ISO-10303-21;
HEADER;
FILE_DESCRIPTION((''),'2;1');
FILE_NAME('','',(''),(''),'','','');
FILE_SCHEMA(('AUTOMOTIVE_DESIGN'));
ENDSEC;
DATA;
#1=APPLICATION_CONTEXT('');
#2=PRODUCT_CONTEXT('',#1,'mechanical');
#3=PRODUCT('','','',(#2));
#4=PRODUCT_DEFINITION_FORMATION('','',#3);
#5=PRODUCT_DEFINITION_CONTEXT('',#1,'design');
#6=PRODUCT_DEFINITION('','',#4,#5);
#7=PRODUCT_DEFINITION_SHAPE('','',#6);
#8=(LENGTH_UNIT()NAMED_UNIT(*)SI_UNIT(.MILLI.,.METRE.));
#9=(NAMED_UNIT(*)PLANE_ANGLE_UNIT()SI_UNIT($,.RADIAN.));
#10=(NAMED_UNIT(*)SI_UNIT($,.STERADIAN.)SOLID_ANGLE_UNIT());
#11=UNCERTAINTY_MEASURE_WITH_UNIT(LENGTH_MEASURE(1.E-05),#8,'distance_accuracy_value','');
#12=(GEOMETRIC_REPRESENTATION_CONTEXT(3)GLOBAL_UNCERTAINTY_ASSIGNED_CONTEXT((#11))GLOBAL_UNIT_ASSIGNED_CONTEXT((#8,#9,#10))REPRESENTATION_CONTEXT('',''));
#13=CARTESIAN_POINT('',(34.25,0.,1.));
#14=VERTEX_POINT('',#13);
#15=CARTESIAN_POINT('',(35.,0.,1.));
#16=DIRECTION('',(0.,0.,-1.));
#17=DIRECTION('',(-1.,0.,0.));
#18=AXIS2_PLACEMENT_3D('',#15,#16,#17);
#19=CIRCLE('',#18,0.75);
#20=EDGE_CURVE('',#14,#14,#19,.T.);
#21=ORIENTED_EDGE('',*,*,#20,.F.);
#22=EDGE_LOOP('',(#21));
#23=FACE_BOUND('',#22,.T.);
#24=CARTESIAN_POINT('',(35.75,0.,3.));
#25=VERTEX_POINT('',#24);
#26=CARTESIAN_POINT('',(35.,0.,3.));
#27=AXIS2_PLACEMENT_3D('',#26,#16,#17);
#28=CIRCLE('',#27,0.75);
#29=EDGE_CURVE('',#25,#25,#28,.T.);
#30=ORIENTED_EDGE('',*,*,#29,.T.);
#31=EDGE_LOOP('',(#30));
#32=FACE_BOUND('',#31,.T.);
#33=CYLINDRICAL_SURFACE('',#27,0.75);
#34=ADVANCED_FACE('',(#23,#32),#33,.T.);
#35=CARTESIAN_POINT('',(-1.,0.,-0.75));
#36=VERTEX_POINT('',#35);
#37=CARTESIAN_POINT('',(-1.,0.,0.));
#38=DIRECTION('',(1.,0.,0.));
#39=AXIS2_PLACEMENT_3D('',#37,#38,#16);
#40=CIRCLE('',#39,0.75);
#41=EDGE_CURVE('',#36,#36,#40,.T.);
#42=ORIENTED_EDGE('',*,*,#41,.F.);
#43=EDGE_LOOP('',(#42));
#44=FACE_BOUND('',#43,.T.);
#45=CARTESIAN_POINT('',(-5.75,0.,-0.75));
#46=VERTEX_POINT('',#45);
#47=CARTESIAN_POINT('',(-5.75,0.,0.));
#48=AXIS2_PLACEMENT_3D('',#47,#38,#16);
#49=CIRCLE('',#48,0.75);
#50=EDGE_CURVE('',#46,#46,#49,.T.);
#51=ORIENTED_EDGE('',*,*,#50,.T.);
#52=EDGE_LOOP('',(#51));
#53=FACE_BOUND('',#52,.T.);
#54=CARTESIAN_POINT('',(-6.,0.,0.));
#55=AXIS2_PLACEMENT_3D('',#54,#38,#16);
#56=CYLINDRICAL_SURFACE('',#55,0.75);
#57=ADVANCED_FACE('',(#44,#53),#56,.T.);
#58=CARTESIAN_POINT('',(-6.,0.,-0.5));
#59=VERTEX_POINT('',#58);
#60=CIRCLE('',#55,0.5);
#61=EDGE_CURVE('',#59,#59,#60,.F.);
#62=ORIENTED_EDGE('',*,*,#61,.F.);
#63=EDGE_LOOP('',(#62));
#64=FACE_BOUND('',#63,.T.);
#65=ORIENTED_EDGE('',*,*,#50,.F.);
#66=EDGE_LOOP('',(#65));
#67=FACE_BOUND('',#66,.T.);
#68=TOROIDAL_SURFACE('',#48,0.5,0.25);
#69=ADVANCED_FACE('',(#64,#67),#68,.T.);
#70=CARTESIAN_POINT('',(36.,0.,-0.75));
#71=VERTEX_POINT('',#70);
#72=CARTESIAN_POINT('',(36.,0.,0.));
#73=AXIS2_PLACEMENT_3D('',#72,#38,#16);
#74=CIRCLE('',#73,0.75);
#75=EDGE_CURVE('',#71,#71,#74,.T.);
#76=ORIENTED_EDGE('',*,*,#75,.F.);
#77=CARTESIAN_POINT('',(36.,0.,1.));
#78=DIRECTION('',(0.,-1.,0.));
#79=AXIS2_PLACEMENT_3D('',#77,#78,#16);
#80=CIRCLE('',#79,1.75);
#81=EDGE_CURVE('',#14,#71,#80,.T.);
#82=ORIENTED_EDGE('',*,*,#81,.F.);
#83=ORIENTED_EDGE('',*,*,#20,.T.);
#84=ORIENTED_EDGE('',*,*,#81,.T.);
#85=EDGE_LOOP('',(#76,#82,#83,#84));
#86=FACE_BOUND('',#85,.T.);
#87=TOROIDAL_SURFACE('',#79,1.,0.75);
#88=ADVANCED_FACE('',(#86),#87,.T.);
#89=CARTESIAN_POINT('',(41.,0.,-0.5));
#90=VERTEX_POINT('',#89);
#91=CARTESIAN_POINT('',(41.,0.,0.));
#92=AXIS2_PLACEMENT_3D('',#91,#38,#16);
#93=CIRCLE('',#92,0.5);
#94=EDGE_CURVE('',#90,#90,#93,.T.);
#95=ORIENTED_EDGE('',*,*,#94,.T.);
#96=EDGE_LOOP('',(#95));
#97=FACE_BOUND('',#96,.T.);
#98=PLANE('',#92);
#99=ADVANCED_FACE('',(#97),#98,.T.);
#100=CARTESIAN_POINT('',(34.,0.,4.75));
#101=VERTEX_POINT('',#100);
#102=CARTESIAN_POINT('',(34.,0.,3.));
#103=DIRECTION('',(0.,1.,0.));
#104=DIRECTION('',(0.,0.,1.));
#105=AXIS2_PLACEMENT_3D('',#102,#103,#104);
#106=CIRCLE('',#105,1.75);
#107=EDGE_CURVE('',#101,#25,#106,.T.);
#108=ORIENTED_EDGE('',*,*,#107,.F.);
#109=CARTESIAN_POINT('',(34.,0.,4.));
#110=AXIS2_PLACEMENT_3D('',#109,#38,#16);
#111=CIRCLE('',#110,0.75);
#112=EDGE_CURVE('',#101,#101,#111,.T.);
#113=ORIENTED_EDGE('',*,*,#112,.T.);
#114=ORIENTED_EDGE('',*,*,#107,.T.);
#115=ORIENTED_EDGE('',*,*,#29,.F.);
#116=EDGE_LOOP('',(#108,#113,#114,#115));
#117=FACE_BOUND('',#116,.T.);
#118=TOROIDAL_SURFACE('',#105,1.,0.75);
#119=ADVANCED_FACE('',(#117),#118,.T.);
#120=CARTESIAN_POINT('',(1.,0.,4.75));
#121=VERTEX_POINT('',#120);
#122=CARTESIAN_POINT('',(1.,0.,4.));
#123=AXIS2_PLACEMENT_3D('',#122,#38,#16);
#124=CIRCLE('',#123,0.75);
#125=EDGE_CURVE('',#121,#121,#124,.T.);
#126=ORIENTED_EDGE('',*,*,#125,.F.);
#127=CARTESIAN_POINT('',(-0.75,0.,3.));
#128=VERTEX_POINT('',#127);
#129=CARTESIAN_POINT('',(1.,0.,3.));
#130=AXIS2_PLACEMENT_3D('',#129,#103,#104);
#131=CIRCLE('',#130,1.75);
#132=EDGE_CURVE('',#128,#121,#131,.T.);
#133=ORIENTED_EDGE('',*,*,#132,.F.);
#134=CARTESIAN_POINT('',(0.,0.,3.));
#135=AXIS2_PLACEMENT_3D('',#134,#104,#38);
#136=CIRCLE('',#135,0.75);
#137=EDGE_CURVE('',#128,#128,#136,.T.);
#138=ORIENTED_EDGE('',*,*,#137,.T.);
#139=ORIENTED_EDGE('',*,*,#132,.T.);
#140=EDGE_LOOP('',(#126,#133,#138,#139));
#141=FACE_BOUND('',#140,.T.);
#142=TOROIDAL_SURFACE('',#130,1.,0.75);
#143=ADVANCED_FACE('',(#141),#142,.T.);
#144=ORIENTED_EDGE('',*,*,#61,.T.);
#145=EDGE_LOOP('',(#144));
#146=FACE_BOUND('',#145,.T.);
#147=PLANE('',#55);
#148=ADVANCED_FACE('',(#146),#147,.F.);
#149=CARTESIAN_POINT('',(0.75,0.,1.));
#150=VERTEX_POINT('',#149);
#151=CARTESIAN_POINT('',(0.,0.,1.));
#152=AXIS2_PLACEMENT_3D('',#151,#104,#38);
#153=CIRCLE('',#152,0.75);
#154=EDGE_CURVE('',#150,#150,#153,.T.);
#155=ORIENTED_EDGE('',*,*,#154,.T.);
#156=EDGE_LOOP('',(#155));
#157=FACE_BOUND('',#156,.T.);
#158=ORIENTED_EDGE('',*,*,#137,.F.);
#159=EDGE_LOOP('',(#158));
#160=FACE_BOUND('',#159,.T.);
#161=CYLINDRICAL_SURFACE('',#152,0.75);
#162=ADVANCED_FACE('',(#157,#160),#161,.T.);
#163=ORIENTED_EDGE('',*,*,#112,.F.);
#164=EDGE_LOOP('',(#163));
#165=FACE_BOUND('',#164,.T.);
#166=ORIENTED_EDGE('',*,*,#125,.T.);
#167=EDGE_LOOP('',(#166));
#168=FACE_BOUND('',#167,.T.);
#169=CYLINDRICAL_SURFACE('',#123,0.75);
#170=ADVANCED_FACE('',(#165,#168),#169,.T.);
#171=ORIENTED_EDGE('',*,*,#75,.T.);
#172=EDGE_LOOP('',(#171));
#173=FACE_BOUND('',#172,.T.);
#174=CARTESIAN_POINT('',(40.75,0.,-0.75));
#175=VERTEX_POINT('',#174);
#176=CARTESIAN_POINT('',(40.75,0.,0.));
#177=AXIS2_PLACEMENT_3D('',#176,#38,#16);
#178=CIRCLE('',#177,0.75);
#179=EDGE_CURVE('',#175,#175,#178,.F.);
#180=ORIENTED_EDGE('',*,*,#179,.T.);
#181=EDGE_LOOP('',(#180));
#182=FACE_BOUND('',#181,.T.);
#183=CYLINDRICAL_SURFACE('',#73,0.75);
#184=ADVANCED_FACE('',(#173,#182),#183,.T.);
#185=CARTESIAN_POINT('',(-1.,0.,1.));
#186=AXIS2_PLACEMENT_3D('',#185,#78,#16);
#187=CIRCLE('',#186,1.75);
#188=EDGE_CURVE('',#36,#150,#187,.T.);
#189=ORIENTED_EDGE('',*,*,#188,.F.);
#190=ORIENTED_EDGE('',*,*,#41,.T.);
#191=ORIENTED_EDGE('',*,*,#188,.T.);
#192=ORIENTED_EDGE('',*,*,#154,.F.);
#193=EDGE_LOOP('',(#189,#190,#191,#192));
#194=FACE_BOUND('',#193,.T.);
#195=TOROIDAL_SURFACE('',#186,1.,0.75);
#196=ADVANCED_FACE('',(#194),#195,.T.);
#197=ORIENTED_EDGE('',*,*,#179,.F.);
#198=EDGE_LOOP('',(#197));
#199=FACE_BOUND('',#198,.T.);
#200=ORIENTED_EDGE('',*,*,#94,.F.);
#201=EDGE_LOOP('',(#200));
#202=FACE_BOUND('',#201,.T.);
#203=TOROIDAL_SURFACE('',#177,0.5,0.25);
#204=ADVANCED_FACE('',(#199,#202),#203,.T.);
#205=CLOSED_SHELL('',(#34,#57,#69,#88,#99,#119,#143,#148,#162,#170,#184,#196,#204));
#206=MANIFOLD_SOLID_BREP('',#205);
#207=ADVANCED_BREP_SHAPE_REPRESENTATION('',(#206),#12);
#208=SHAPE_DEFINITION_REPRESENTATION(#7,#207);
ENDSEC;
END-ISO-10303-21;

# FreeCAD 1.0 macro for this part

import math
import FreeCAD as App
import Part
import Sketcher
from FreeCAD import Vector


def edges_at(feature, points):
    """Names of the edges that pass closest to the given points."""
    edges = feature.Shape.Edges
    near = lambda p: min(range(len(edges)), key=lambda i: edges[i].distToShape(Part.Vertex(*p))[0])
    return sorted({f"Edge{near(p) + 1}" for p in points})

doc = App.newDocument("Part")
body = doc.addObject("PartDesign::Body", "Body")

# Sketch on YZ plane
sketch1 = body.newObject("Sketcher::SketchObject", "Sketch")
sketch1.AttachmentSupport = (doc.getObject("YZ_Plane"), [""])
sketch1.MapMode = "FlatFace"
sketch1.AttachmentOffset = App.Placement(Vector(0, 0, -6), App.Rotation())
sketch1.addGeometry(Part.Circle(Vector(0, 0, 0), Vector(0, 0, 1), 0.75), False)
sketch1.addConstraint(Sketcher.Constraint("Coincident", 0, 3, -1, 1))
sketch1.addConstraint(Sketcher.Constraint("Diameter", 0, 1.5))

# Sketch on XZ plane
sketch2 = body.newObject("Sketcher::SketchObject", "Sketch001")
sketch2.AttachmentSupport = (doc.getObject("XZ_Plane"), [""])
sketch2.MapMode = "FlatFace"
sketch2.addGeometry(Part.LineSegment(Vector(-6, 0, 0), Vector(-1, 0, 0)), False)
sketch2.addGeometry(Part.ArcOfCircle(Part.Circle(Vector(-1, 1, 0), Vector(0, 0, 1), 1), math.radians(-90), math.radians(0)), False)
sketch2.addGeometry(Part.LineSegment(Vector(0, 1, 0), Vector(0, 3, 0)), False)
sketch2.addGeometry(Part.ArcOfCircle(Part.Circle(Vector(1, 3, 0), Vector(0, 0, 1), 1), math.radians(90), math.radians(180)), False)
sketch2.addGeometry(Part.LineSegment(Vector(1, 4, 0), Vector(34, 4, 0)), False)
sketch2.addGeometry(Part.ArcOfCircle(Part.Circle(Vector(34, 3, 0), Vector(0, 0, 1), 1), math.radians(0), math.radians(90)), False)
sketch2.addGeometry(Part.LineSegment(Vector(35, 3, 0), Vector(35, 1, 0)), False)
sketch2.addGeometry(Part.ArcOfCircle(Part.Circle(Vector(36, 1, 0), Vector(0, 0, 1), 1), math.radians(-180), math.radians(-90)), False)
sketch2.addGeometry(Part.LineSegment(Vector(36, 0, 0), Vector(41, 0, 0)), False)
sketch2.addConstraint(Sketcher.Constraint("Tangent", 0, 2, 1, 1))
sketch2.addConstraint(Sketcher.Constraint("Tangent", 1, 2, 2, 1))
sketch2.addConstraint(Sketcher.Constraint("Tangent", 2, 2, 3, 2))
sketch2.addConstraint(Sketcher.Constraint("Tangent", 3, 1, 4, 1))
sketch2.addConstraint(Sketcher.Constraint("Tangent", 4, 2, 5, 2))
sketch2.addConstraint(Sketcher.Constraint("Tangent", 5, 1, 6, 1))
sketch2.addConstraint(Sketcher.Constraint("Tangent", 6, 2, 7, 1))
sketch2.addConstraint(Sketcher.Constraint("Tangent", 7, 2, 8, 1))
sketch2.addConstraint(Sketcher.Constraint("Horizontal", 0))
sketch2.addConstraint(Sketcher.Constraint("Vertical", 2))
sketch2.addConstraint(Sketcher.Constraint("Horizontal", 4))
sketch2.addConstraint(Sketcher.Constraint("Vertical", 6))
sketch2.addConstraint(Sketcher.Constraint("Horizontal", 8))
sketch2.addConstraint(Sketcher.Constraint("Equal", 1, 3))
sketch2.addConstraint(Sketcher.Constraint("Equal", 3, 5))
sketch2.addConstraint(Sketcher.Constraint("Equal", 5, 7))
sketch2.addConstraint(Sketcher.Constraint("PointOnObject", 0, 1, -1))
sketch2.addConstraint(Sketcher.Constraint("PointOnObject", 1, 2, -2))
sketch2.addConstraint(Sketcher.Constraint("PointOnObject", 7, 2, -1))
sketch2.addConstraint(Sketcher.Constraint("Equal", 0, 8))
sketch2.addConstraint(Sketcher.Constraint("Radius", 1, 1.0))
sketch2.addConstraint(Sketcher.Constraint("DistanceX", 0, 1, 0, 2, 5.0))
sketch2.addConstraint(Sketcher.Constraint("DistanceX", 4, 1, 4, 2, 33.0))
sketch2.addConstraint(Sketcher.Constraint("DistanceY", 2, 1, 2, 2, 2.0))
doc.recompute()

additivepipe = body.newObject("PartDesign::AdditivePipe", "AdditivePipe")
additivepipe.Profile = sketch1
additivepipe.Spine = (sketch2, ["Edge1", "Edge2", "Edge3", "Edge4", "Edge5", "Edge6", "Edge7", "Edge8", "Edge9"])
doc.recompute()

fillet = body.newObject("PartDesign::Fillet", "Fillet")
fillet.Base = (additivepipe, edges_at(additivepipe, [(41, 0, 0.75), (-6, 0, 0.75)]))
fillet.Radius = 0.25

doc.recompute()
